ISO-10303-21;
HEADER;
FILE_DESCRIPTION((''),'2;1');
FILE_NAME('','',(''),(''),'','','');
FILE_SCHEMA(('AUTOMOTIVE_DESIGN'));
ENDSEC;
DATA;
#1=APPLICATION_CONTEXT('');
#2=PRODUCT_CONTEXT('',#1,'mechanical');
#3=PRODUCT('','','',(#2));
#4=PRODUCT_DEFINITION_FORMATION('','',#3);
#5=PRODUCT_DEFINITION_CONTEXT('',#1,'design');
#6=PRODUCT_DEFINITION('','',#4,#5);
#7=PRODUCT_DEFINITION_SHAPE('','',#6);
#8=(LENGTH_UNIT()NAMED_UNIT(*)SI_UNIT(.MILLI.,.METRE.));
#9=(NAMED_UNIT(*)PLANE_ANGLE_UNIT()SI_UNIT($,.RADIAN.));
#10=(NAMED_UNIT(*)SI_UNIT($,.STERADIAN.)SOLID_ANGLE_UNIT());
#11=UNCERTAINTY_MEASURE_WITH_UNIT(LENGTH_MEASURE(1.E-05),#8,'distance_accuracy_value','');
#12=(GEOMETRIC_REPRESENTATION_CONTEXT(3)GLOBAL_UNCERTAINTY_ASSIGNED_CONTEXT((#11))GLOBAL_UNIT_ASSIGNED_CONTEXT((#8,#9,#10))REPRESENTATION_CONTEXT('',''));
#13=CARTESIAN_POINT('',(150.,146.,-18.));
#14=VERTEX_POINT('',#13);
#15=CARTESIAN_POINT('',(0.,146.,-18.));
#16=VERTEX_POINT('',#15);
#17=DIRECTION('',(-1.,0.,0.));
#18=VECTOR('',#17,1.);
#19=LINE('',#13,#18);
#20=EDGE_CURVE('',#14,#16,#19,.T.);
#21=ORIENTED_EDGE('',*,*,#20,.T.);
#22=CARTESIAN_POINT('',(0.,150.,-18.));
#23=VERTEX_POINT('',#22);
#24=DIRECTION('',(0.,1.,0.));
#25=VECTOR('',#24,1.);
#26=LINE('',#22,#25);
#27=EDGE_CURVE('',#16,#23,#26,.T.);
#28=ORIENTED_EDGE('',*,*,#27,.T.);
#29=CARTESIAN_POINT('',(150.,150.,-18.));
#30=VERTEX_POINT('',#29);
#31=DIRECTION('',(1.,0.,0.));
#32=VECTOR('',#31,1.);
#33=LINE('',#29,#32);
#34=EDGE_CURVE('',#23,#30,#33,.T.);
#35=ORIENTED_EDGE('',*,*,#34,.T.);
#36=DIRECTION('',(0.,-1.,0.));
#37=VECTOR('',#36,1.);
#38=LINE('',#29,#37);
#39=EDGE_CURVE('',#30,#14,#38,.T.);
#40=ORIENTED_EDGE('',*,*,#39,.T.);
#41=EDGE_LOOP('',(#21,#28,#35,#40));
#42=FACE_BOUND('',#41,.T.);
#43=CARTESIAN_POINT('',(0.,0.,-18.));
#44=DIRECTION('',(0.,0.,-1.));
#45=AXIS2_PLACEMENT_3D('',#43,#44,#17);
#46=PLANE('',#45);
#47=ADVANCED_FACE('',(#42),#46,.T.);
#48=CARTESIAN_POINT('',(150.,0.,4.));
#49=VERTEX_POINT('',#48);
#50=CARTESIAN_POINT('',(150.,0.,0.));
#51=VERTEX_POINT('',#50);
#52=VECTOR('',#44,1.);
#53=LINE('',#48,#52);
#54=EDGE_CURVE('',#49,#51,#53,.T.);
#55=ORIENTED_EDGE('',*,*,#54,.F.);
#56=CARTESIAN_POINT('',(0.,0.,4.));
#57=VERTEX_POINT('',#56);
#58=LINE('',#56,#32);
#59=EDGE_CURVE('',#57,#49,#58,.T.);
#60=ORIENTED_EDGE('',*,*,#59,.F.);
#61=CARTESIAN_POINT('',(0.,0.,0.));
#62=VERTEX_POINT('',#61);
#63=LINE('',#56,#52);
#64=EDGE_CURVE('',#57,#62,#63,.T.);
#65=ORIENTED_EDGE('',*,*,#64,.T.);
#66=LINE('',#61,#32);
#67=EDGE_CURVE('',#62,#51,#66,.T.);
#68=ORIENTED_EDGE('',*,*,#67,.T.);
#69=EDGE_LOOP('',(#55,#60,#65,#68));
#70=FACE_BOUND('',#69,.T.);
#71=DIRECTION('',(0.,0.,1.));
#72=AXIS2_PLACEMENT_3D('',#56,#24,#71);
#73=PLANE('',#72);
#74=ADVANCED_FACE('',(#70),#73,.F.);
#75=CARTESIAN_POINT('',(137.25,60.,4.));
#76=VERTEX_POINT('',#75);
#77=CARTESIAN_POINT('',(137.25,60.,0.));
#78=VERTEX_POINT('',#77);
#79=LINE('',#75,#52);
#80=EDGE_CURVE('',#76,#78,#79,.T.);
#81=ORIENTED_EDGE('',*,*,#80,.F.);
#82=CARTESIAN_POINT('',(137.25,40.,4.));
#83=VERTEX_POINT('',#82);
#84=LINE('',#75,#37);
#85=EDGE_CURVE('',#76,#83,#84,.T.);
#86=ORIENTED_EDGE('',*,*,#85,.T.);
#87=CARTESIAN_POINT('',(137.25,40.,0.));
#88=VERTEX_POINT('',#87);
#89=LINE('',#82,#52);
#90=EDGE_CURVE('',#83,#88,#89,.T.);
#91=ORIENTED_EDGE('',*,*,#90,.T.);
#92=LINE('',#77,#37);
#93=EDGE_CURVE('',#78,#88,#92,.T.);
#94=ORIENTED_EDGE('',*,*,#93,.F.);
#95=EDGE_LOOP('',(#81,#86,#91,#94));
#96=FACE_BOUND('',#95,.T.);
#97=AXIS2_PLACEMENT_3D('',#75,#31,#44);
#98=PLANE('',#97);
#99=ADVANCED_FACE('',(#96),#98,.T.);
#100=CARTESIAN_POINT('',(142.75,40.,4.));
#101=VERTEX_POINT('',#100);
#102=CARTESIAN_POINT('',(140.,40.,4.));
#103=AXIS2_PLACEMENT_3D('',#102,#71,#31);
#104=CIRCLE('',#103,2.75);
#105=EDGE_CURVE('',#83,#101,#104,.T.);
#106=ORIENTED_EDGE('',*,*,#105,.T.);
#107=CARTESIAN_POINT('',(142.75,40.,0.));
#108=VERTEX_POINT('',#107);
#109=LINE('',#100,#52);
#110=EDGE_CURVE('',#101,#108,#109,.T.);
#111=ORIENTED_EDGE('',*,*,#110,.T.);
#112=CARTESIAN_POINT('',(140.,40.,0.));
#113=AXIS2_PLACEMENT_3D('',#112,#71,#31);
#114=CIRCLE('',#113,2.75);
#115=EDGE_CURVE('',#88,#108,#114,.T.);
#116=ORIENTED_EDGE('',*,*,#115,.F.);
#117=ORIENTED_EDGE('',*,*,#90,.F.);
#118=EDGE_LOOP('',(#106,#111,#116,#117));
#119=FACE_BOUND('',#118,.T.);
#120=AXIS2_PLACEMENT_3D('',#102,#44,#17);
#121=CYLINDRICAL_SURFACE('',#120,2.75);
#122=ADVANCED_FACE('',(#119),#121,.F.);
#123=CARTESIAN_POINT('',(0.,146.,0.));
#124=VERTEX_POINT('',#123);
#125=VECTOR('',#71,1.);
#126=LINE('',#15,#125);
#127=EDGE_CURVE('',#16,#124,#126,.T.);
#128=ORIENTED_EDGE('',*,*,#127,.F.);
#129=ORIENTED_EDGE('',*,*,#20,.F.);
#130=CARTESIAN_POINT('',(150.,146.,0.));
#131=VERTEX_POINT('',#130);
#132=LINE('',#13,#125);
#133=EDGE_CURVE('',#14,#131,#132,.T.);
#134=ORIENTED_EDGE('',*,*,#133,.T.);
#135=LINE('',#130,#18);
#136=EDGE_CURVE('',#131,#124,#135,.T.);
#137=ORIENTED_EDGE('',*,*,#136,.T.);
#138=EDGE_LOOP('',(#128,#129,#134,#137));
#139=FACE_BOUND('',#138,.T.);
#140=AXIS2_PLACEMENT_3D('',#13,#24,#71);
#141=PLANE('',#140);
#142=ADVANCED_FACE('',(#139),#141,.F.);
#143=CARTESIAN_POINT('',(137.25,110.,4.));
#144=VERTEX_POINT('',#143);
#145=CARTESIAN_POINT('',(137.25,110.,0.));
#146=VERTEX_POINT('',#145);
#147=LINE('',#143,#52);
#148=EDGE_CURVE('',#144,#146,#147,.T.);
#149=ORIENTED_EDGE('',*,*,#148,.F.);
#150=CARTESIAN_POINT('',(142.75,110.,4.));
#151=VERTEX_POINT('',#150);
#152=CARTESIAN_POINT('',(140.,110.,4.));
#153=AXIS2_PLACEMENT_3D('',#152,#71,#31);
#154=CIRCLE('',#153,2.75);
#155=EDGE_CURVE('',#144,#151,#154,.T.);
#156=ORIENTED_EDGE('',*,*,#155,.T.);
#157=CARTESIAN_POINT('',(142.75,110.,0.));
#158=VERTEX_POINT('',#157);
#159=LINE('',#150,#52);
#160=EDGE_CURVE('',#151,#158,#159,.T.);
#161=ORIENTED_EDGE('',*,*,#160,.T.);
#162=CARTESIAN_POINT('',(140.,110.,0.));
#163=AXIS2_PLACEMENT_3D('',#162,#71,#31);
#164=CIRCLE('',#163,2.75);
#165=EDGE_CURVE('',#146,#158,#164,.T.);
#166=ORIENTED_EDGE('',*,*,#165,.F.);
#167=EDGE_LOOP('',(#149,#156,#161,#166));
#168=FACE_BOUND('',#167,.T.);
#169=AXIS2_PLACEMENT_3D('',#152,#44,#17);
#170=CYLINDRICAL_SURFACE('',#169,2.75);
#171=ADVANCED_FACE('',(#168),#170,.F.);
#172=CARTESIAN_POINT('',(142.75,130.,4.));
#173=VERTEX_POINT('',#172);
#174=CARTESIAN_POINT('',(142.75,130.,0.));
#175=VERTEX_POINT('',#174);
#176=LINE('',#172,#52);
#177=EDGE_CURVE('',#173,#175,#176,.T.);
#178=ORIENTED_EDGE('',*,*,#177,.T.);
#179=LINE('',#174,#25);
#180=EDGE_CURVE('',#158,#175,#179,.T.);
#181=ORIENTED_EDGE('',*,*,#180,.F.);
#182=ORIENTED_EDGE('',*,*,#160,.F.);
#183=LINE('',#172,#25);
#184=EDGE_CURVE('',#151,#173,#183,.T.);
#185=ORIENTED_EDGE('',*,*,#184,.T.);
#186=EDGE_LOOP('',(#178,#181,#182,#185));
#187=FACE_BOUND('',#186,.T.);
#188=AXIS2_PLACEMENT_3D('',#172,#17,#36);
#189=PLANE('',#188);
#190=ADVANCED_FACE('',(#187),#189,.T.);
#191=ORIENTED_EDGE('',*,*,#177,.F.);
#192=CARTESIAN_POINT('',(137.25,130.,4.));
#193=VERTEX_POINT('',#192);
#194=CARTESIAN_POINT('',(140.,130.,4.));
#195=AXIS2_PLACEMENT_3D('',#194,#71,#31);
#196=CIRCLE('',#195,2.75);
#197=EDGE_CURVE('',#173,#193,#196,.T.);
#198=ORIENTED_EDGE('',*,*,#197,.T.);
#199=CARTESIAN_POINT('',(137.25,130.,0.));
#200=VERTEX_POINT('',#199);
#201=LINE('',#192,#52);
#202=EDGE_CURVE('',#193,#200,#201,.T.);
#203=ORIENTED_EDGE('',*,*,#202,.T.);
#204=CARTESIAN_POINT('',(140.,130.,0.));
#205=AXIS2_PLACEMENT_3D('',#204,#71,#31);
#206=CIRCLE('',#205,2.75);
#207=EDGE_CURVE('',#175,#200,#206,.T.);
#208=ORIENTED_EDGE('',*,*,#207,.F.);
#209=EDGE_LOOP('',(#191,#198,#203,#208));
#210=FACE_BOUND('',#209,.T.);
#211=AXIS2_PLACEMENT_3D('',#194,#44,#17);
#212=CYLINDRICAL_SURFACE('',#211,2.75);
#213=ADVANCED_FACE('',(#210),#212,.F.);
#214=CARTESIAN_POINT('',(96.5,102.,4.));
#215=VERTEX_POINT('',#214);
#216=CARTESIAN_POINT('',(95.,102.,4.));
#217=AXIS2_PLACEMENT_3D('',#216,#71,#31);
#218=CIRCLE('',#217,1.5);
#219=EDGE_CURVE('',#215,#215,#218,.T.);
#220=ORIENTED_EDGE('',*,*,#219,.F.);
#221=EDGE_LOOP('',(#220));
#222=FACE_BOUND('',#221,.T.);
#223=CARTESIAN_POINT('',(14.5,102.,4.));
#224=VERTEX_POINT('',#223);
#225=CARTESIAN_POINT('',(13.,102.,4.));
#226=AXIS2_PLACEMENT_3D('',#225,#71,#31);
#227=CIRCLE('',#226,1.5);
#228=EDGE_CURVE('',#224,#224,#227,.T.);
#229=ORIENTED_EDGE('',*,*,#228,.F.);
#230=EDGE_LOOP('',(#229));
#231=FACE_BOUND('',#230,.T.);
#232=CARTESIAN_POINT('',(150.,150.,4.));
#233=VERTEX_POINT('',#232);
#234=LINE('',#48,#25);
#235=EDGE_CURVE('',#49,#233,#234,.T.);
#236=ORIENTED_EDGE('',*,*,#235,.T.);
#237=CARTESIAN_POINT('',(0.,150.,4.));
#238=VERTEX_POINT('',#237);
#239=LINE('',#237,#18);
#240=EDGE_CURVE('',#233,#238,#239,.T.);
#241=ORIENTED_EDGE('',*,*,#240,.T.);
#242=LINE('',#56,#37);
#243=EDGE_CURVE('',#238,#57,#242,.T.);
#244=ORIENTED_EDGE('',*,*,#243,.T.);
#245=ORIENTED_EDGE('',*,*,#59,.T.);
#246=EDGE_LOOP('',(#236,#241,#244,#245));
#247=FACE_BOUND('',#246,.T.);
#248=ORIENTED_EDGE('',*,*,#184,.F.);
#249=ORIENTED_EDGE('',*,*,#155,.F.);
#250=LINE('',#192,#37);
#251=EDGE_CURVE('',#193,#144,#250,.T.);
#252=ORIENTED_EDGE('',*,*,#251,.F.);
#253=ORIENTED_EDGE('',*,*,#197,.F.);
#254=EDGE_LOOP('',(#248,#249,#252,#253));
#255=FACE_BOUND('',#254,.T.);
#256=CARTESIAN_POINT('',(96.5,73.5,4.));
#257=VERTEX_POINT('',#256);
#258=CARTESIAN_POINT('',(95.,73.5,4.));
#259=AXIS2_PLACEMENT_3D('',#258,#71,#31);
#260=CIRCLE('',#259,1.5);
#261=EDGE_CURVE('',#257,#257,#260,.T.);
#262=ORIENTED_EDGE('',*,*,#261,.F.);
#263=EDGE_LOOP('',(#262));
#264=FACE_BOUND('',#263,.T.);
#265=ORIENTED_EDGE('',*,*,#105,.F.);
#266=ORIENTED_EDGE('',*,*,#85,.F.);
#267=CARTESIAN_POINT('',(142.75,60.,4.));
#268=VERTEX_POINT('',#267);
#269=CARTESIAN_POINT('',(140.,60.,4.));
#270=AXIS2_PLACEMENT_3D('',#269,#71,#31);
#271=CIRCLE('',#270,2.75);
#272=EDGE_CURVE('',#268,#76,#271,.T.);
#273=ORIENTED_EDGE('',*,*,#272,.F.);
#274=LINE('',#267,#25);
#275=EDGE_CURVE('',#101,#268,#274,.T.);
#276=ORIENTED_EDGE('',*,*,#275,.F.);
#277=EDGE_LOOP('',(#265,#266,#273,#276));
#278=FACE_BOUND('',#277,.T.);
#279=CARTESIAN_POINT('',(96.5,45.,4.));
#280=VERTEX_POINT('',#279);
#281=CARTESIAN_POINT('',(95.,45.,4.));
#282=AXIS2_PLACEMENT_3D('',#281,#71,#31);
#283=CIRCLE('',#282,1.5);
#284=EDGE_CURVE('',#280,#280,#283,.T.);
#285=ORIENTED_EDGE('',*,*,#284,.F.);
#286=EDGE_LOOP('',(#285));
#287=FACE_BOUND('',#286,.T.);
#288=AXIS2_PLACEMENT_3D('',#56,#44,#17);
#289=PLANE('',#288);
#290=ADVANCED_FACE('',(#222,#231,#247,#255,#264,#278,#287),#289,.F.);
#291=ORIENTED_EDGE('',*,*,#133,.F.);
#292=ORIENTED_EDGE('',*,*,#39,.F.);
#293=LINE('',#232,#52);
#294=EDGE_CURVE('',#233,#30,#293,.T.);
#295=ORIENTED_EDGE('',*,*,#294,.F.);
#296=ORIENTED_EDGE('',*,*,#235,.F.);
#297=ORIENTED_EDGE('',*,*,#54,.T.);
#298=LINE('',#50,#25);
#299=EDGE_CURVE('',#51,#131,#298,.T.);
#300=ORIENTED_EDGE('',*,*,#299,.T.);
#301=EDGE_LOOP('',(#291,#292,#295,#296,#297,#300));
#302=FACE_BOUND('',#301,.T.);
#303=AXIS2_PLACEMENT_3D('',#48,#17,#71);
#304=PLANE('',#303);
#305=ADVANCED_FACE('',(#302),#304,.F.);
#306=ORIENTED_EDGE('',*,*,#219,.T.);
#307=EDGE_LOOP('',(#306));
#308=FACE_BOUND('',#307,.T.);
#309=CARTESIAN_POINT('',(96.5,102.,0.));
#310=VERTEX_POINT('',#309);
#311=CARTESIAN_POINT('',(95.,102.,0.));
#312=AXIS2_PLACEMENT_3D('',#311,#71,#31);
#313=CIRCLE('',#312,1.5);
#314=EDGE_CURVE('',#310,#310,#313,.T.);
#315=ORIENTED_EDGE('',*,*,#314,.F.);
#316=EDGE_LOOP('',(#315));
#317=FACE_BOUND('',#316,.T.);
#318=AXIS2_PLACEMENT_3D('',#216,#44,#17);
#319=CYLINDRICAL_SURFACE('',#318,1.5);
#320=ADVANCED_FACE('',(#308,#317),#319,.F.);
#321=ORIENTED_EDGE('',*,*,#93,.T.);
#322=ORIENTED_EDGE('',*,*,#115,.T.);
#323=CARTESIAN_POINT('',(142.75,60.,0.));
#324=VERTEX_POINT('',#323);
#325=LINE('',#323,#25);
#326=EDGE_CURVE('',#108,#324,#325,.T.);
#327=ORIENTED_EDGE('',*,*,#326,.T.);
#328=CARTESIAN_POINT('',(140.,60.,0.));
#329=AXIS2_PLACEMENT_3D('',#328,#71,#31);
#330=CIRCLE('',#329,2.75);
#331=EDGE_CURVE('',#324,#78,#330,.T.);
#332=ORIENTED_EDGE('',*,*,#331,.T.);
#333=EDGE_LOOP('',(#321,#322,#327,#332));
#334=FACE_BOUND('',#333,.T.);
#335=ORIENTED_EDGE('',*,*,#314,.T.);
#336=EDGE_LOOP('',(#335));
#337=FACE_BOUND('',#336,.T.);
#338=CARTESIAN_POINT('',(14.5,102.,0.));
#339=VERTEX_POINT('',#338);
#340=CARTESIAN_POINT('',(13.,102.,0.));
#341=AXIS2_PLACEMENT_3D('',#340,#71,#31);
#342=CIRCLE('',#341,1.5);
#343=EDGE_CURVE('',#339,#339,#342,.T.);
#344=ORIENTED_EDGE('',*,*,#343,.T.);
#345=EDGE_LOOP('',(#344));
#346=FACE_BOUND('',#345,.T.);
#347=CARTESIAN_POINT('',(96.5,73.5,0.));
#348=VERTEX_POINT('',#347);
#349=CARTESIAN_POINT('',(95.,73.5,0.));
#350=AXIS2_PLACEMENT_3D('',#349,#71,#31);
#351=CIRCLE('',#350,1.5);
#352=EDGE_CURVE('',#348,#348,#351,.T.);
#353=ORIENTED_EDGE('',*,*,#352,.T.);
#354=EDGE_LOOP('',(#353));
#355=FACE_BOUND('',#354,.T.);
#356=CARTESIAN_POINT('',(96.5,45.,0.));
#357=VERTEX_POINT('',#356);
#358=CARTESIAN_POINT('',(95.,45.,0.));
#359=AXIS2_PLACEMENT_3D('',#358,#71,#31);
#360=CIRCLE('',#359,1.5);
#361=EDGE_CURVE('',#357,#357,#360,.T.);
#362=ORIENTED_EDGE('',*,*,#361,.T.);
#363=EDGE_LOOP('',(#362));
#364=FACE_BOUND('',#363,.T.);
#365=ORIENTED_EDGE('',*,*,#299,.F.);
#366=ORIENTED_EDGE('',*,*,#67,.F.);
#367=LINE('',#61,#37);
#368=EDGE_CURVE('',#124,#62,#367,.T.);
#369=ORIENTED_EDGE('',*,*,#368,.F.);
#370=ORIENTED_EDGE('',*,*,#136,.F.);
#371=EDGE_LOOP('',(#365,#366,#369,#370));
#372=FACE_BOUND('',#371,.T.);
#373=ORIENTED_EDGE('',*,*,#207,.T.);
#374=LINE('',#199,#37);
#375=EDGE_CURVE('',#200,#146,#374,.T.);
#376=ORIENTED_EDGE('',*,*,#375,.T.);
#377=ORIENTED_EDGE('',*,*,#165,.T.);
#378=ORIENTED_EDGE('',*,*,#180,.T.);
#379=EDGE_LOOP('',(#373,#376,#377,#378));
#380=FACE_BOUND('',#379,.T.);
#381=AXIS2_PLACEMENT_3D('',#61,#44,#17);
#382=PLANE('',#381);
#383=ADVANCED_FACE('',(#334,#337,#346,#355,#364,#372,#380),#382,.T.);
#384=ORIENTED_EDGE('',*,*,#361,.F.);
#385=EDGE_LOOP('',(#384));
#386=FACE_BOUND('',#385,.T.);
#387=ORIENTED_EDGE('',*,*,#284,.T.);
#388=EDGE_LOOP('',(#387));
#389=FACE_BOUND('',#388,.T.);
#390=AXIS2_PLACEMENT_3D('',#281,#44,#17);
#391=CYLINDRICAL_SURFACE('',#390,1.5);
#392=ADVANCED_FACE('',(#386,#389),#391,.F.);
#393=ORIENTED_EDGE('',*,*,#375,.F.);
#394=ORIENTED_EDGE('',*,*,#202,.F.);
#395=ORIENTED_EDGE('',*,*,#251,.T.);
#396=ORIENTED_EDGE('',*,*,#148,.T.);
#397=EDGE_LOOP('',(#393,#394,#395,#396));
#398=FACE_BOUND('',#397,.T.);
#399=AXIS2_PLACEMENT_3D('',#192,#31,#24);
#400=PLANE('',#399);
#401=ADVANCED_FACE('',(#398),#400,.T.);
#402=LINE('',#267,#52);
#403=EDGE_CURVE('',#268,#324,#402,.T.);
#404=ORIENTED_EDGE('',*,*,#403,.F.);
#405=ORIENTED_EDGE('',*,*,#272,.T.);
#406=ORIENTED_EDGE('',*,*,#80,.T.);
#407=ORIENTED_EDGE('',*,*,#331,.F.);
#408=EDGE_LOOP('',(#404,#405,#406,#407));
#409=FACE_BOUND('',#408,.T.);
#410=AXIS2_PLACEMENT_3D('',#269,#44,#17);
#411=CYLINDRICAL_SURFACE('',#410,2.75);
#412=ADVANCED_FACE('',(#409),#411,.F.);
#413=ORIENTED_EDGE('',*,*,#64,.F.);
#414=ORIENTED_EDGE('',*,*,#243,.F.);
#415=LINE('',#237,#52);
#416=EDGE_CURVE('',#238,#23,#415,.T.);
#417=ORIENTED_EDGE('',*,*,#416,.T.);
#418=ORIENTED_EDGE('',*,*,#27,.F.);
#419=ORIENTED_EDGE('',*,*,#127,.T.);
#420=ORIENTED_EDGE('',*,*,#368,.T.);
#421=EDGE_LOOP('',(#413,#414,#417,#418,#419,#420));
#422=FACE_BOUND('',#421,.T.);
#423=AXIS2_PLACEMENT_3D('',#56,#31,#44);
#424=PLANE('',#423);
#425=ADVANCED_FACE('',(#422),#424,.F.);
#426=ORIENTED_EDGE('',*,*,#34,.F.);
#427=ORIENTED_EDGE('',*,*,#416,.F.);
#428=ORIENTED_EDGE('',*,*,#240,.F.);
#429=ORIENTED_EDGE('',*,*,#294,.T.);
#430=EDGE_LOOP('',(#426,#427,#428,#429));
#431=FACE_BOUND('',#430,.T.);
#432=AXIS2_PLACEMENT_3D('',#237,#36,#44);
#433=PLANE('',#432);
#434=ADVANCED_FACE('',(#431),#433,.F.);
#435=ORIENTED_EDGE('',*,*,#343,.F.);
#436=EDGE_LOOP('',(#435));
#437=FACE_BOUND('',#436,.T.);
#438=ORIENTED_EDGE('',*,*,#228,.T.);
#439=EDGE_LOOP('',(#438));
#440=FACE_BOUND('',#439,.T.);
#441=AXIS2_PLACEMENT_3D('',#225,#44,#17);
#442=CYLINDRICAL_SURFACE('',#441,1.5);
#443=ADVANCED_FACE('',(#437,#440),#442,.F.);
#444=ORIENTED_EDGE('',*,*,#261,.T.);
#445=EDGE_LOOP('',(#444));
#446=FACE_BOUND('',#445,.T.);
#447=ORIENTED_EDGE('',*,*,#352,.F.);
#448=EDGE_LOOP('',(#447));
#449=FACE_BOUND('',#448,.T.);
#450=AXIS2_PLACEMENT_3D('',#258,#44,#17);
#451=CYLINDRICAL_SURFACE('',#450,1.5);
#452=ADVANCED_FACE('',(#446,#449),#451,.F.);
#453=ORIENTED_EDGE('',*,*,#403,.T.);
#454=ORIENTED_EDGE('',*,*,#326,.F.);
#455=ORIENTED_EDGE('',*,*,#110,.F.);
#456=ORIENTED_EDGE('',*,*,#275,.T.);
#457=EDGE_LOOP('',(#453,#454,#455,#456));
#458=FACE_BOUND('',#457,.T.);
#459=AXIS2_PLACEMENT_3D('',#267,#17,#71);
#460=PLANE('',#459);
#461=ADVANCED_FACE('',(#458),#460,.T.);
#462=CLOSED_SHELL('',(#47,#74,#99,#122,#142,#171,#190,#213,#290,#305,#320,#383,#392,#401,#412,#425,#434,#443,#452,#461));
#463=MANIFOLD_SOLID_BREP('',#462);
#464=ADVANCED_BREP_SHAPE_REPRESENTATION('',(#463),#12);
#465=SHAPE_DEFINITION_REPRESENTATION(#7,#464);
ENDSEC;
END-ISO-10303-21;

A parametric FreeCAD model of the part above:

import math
import FreeCAD as App
import Part
import Sketcher
Q = App.Units.Quantity


def add_polygon(sketch, points):
    """Adds a closed chain of lines whose ends are joined by coincident constraints."""
    first, n = sketch.GeometryCount, len(points)
    for a, b in zip(points, points[1:] + points[:1]):
        sketch.addGeometry(Part.LineSegment(App.Vector(*a, 0), App.Vector(*b, 0)), False)
    for i in range(n):
        sketch.addConstraint(Sketcher.Constraint("Coincident", first + i, 2, first + (i + 1) % n, 1))

doc = App.newDocument("Part")
body = doc.addObject("PartDesign::Body", "Body")

# Sketch on XY plane
sketch1 = body.newObject("Sketcher::SketchObject", "Sketch")
sketch1.AttachmentSupport = (doc.getObject("XY_Plane"), [""])
sketch1.MapMode = "FlatFace"
add_polygon(sketch1, [(0, 150), (0, 0), (150, 0), (150, 150)])  # lines 0-3
sketch1.addGeometry(Part.Circle(App.Vector(95, 45, 0), App.Vector(0, 0, 1), 1.5), False)  # 4
sketch1.addGeometry(Part.ArcOfCircle(Part.Circle(App.Vector(140, 60, 0), App.Vector(0, 0, 1), 2.8), math.radians(0), math.radians(180)), False)  # 5
sketch1.addGeometry(Part.LineSegment(App.Vector(142.8, 60, 0), App.Vector(142.8, 40, 0)), False)  # 6
sketch1.addGeometry(Part.ArcOfCircle(Part.Circle(App.Vector(140, 40, 0), App.Vector(0, 0, 1), 2.8), math.radians(180), math.radians(360)), False)  # 7
sketch1.addGeometry(Part.LineSegment(App.Vector(137.2, 40, 0), App.Vector(137.2, 60, 0)), False)  # 8
sketch1.addGeometry(Part.Circle(App.Vector(95, 73.5, 0), App.Vector(0, 0, 1), 1.5), False)  # 9
sketch1.addGeometry(Part.Circle(App.Vector(13, 102, 0), App.Vector(0, 0, 1), 1.5), False)  # 10
sketch1.addGeometry(Part.Circle(App.Vector(95, 102, 0), App.Vector(0, 0, 1), 1.5), False)  # 11
sketch1.addGeometry(Part.ArcOfCircle(Part.Circle(App.Vector(140, 130, 0), App.Vector(0, 0, 1), 2.8), math.radians(0), math.radians(180)), False)  # 12
sketch1.addGeometry(Part.LineSegment(App.Vector(142.8, 130, 0), App.Vector(142.8, 110, 0)), False)  # 13
sketch1.addGeometry(Part.ArcOfCircle(Part.Circle(App.Vector(140, 110, 0), App.Vector(0, 0, 1), 2.8), math.radians(180), math.radians(360)), False)  # 14
sketch1.addGeometry(Part.LineSegment(App.Vector(137.2, 110, 0), App.Vector(137.2, 130, 0)), False)  # 15
sketch1.addConstraint([
    Sketcher.Constraint("Tangent", 5, 1, 6, 1),
    Sketcher.Constraint("Tangent", 6, 2, 7, 2),
    Sketcher.Constraint("Tangent", 7, 1, 8, 1),
    Sketcher.Constraint("Tangent", 8, 2, 5, 2),
    Sketcher.Constraint("Tangent", 12, 1, 13, 1),
    Sketcher.Constraint("Tangent", 13, 2, 14, 2),
    Sketcher.Constraint("Tangent", 14, 1, 15, 1),
    Sketcher.Constraint("Tangent", 15, 2, 12, 2),
    Sketcher.Constraint("Vertical", 0),
    Sketcher.Constraint("Horizontal", 1),
    Sketcher.Constraint("Vertical", 2),
    Sketcher.Constraint("Horizontal", 3),
    Sketcher.Constraint("Vertical", 6),
    Sketcher.Constraint("Vertical", 8),
    Sketcher.Constraint("Vertical", 13),
    Sketcher.Constraint("Vertical", 15),
    Sketcher.Constraint("Coincident", 0, 2, -1, 1),
    Sketcher.Constraint("Equal", 4, 9),
    Sketcher.Constraint("Equal", 9, 10),
    Sketcher.Constraint("Equal", 10, 11),
    Sketcher.Constraint("Equal", 7, 12),
    Sketcher.Constraint("Horizontal", 10, 3, 11, 3),
    Sketcher.Constraint("Vertical", 4, 3, 9, 3),
    Sketcher.Constraint("Vertical", 9, 3, 11, 3),
    Sketcher.Constraint("Vertical", 7, 3, 12, 3),
    Sketcher.Constraint("Equal", 3, 0),
    Sketcher.Constraint("Equal", 8, 13),
    Sketcher.Constraint("Diameter", 4, Q("3 mm")),
    Sketcher.Constraint("DistanceX", 1, 1, 1, 2, Q("150 mm")),
    Sketcher.Constraint("DistanceY", 6, 2, 6, 1, Q("20 mm")),
    Sketcher.Constraint("Radius", 5, Q("2.75 mm")),
    Sketcher.Constraint("DistanceX", -1, 1, 4, 3, Q("95 mm")),
    Sketcher.Constraint("DistanceY", -1, 1, 4, 3, Q("45 mm")),
    Sketcher.Constraint("DistanceX", -1, 1, 5, 3, Q("140 mm")),
    Sketcher.Constraint("DistanceY", -1, 1, 5, 3, Q("60 mm")),
    Sketcher.Constraint("DistanceX", -1, 1, 10, 3, Q("13 mm")),
    Sketcher.Constraint("DistanceY", -1, 1, 10, 3, Q("102 mm")),
    Sketcher.Constraint("DistanceY", -1, 1, 12, 3, Q("130 mm")),
    Sketcher.Constraint("DistanceY", -1, 1, 9, 3, Q("73.5 mm")),
])
pad1 = body.newObject("PartDesign::Pad", "Pad")
pad1.Profile = sketch1
pad1.Length = 4

# Sketch on XY plane
sketch2 = body.newObject("Sketcher::SketchObject", "Sketch001")
sketch2.AttachmentSupport = (doc.getObject("XY_Plane"), [""])
sketch2.MapMode = "FlatFace"
add_polygon(sketch2, [(150, 150), (150, 146), (0, 146), (0, 150)])  # lines 0-3
sketch2.addConstraint([
    Sketcher.Constraint("Vertical", 0),
    Sketcher.Constraint("Horizontal", 1),
    Sketcher.Constraint("Vertical", 2),
    Sketcher.Constraint("Horizontal", 3),
    Sketcher.Constraint("PointOnObject", 1, 2, -2),
    Sketcher.Constraint("DistanceX", 1, 2, 1, 1, Q("150 mm")),
    Sketcher.Constraint("DistanceY", 0, 2, 0, 1, Q("4 mm")),
    Sketcher.Constraint("DistanceY", -1, 1, 0, 2, Q("146 mm")),
])
pad2 = body.newObject("PartDesign::Pad", "Pad001")
pad2.Profile = sketch2
pad2.Length = 18
pad2.Reversed = True

doc.recompute()
